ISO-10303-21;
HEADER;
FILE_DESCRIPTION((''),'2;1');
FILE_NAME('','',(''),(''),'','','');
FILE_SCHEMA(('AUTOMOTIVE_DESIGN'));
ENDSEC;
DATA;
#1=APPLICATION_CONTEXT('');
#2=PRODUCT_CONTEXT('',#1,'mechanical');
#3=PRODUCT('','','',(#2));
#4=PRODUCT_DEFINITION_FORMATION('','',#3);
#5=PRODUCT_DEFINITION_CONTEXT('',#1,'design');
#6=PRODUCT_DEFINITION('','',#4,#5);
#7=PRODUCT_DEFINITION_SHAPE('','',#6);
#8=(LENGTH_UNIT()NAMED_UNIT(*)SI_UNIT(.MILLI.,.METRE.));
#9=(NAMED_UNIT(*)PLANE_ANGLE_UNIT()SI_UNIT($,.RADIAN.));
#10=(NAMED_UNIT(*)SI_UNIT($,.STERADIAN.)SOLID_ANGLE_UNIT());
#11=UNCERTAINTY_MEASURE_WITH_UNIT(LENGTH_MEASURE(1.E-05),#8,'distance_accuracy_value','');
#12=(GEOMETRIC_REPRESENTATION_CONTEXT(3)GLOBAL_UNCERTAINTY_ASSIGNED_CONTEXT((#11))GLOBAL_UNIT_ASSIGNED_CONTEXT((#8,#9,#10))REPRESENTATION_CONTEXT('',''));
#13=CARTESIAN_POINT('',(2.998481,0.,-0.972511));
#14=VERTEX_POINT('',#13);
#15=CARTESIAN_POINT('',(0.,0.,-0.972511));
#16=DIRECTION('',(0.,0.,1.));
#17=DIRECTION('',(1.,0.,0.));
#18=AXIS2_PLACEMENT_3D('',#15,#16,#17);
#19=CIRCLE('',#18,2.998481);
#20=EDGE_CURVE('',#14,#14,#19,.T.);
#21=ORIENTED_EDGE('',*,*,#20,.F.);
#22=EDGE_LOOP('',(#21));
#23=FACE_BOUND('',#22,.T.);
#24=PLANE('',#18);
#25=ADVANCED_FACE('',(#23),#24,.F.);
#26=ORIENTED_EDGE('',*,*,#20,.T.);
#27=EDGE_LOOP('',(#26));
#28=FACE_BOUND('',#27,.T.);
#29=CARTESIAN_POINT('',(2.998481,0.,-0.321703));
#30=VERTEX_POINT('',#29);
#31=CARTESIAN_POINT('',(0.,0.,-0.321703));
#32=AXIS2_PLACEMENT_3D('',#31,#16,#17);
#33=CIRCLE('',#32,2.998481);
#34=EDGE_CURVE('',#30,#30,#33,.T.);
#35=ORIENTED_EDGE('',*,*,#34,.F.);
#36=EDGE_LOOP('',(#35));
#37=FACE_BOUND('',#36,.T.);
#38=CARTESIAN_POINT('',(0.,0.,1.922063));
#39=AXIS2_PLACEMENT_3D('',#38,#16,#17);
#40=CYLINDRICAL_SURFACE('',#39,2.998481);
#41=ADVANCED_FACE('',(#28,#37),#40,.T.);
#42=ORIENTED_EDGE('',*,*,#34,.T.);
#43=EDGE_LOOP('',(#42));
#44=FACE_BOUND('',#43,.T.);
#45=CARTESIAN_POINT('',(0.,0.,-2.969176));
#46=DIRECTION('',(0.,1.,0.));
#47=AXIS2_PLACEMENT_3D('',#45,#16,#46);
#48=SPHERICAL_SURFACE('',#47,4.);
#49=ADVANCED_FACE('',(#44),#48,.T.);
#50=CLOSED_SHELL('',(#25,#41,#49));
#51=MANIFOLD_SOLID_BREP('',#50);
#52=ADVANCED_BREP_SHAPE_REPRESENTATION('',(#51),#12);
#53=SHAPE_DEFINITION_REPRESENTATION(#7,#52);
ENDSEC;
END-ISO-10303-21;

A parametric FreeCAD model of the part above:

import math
import FreeCAD as App
import Part
import Sketcher
from FreeCAD import Vector

doc = App.newDocument("Part")
body = doc.addObject("PartDesign::Body", "Body")

sketch1 = body.newObject("Sketcher::SketchObject", "Sketch")
sketch1.AttachmentSupport = (doc.getObject("YZ_Plane"), [""])
sketch1.MapMode = "FlatFace"
sketch1.addGeometry([
    Part.LineSegment(Vector(3, -1, 0), Vector(3, -0.3, 0)),
    Part.ArcOfCircle(Part.Circle(Vector(0, -3, 0), Vector(0, 0, 1), 4), math.radians(41), math.radians(90)),
    Part.LineSegment(Vector(0, 1, 0), Vector(0, -1, 0)),
    Part.LineSegment(Vector(0, -1, 0), Vector(3, -1, 0)),
], False)
sketch1.addConstraint([
    Sketcher.Constraint("Coincident", 0, 2, 1, 1),
    Sketcher.Constraint("Coincident", 1, 2, 2, 1),
    Sketcher.Constraint("Coincident", 2, 2, 3, 1),
    Sketcher.Constraint("Coincident", 3, 2, 0, 1),
    Sketcher.Constraint("Vertical", 0),
    Sketcher.Constraint("Vertical", 2),
    Sketcher.Constraint("Horizontal", 3),
    Sketcher.Constraint("PointOnObject", 1, 3, -2),
    Sketcher.Constraint("PointOnObject", 1, 2, -2),
    Sketcher.Constraint("Radius", 1, 4.0),
    Sketcher.Constraint("DistanceX", 3, 1, 3, 2, 2.998481),
    Sketcher.Constraint("DistanceY", 0, 1, 0, 2, 0.650808),
    Sketcher.Constraint("DistanceY", 2, 2, -1, 1, 0.972511),
])
revolution = body.newObject("PartDesign::Revolution", "Revolution")
revolution.Profile = sketch1
revolution.ReferenceAxis = (sketch1, ["V_Axis"])
revolution.Angle = 360

doc.recompute()
